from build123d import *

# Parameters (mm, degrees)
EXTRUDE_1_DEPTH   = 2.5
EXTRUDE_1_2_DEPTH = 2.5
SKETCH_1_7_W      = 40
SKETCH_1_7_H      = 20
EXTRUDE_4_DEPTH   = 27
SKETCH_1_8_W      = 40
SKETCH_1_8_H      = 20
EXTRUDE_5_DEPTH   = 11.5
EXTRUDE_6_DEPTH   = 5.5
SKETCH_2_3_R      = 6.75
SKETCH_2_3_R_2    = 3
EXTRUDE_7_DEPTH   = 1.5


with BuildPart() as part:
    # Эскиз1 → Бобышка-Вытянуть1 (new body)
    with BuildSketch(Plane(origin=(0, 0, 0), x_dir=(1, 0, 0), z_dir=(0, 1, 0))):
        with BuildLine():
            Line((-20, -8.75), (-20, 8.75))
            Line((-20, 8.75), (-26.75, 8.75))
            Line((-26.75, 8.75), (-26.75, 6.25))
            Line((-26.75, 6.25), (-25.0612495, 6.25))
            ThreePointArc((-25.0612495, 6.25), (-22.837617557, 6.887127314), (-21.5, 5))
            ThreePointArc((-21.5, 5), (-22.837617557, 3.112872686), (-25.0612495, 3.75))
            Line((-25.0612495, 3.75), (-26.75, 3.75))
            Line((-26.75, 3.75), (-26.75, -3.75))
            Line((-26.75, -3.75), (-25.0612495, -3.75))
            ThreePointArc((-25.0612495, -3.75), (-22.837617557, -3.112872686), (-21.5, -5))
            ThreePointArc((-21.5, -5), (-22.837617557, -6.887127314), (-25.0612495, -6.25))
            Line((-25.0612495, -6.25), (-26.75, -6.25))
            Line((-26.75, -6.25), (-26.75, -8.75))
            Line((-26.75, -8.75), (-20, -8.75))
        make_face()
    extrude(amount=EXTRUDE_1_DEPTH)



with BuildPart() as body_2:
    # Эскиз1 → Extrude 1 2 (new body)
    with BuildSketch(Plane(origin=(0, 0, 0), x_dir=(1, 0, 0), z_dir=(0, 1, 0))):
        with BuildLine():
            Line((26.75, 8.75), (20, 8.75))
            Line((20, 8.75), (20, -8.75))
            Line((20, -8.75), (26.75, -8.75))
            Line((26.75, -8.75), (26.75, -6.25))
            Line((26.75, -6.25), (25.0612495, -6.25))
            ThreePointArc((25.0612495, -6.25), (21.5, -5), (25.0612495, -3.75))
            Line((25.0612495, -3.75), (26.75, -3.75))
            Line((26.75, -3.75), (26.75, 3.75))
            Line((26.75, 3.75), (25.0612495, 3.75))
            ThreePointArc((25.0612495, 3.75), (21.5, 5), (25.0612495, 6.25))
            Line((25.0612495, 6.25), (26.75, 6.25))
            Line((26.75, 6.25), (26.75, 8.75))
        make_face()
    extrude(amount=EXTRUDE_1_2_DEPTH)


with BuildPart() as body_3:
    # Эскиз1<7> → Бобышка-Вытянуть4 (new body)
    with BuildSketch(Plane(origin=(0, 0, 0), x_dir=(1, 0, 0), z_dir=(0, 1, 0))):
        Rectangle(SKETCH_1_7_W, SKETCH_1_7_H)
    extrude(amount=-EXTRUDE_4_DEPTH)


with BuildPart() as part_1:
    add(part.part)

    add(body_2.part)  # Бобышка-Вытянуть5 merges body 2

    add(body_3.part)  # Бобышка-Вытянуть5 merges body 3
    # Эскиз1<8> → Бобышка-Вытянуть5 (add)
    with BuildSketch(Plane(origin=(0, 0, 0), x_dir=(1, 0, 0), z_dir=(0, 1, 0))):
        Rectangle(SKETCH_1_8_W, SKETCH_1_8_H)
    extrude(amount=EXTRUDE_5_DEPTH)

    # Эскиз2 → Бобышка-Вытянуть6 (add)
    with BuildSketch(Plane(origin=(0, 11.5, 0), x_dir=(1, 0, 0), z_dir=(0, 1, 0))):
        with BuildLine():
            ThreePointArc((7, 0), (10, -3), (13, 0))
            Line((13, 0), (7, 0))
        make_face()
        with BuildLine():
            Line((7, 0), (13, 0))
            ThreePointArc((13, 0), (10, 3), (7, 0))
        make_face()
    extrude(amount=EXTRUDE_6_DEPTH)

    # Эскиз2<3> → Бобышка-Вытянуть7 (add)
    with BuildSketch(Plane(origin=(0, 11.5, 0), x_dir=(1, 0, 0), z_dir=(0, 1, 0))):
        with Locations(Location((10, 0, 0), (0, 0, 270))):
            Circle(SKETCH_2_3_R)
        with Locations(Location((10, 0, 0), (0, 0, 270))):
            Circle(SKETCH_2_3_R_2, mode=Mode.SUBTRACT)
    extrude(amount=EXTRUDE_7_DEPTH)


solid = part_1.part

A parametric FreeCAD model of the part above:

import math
import FreeCAD as App
import Part
import Sketcher
from FreeCAD import Vector
Q = App.Units.Quantity


def add_polygon(sketch, points):
    """Adds a closed chain of lines whose ends are joined by coincident constraints."""
    first, n = sketch.GeometryCount, len(points)
    for a, b in zip(points, points[1:] + points[:1]):
        sketch.addGeometry(Part.LineSegment(App.Vector(*a, 0), App.Vector(*b, 0)), False)
    for i in range(n):
        sketch.addConstraint(Sketcher.Constraint("Coincident", first + i, 2, first + (i + 1) % n, 1))

doc = App.newDocument("Part")
params = doc.addObject("Spreadsheet::Sheet", "Params")
for row, (alias, value) in enumerate([
    ("sketch1_radius", "2 mm"),
    ("sketch1_height", "17.5 mm"),
    ("sketch1_height2", "2.5 mm"),
    ("sketch1_height3", "7.5 mm"),
    ("sketch1_width", "6.75 mm"),
    ("pad1_length", "2.5 mm"),
    ("sketch2_radius", "2 mm"),
    ("sketch2_height", "17.5 mm"),
    ("sketch2_height2", "2.5 mm"),
    ("sketch2_height3", "7.5 mm"),
    ("sketch2_width", "6.75 mm"),
    ("pad2_length", "2.5 mm"),
    ("sketch3_width", "40 mm"),
    ("sketch3_height", "20 mm"),
    ("pad3_length", "27 mm"),
    ("sketch4_width", "40 mm"),
    ("sketch4_height", "20 mm"),
    ("pad4_length", "11.5 mm"),
    ("sketch5_diameter", "6 mm"),
    ("pad5_length", "5.5 mm"),
    ("sketch6_diameter", "6 mm"),
    ("sketch6_diameter2", "13.5 mm"),
    ("pad6_length", "1.5 mm"),
], start=1):
    params.set(f"A{row}", alias)
    params.set(f"B{row}", "=" + value)
    params.setAlias(f"B{row}", alias)

body = doc.addObject("PartDesign::Body", "Body")

sketch1 = body.newObject("Sketcher::SketchObject", "Sketch")
sketch1.AttachmentSupport = (doc.getObject("XZ_Plane"), [""])
sketch1.MapMode = "FlatFace"
sketch1.addGeometry([
    Part.LineSegment(Vector(-20, 8.8, 0), Vector(-20, -8.8, 0)),
    Part.LineSegment(Vector(-20, -8.8, 0), Vector(-26.8, -8.8, 0)),
    Part.LineSegment(Vector(-26.8, -8.8, 0), Vector(-26.8, -6.2, 0)),
    Part.LineSegment(Vector(-26.8, -6.2, 0), Vector(-25.1, -6.2, 0)),
    Part.ArcOfCircle(Part.Circle(Vector(-23.5, -5, 0), Vector(0, 0, 1), 2), math.radians(-141), math.radians(0)),
    Part.ArcOfCircle(Part.Circle(Vector(-23.5, -5, 0), Vector(0, 0, 1), 2), math.radians(0), math.radians(141)),
    Part.LineSegment(Vector(-25.1, -3.8, 0), Vector(-26.8, -3.8, 0)),
    Part.LineSegment(Vector(-26.8, -3.8, 0), Vector(-26.8, 3.8, 0)),
    Part.LineSegment(Vector(-26.8, 3.8, 0), Vector(-25.1, 3.8, 0)),
    Part.ArcOfCircle(Part.Circle(Vector(-23.5, 5, 0), Vector(0, 0, 1), 2), math.radians(-141), math.radians(0)),
    Part.ArcOfCircle(Part.Circle(Vector(-23.5, 5, 0), Vector(0, 0, 1), 2), math.radians(0), math.radians(141)),
    Part.LineSegment(Vector(-25.1, 6.2, 0), Vector(-26.8, 6.2, 0)),
    Part.LineSegment(Vector(-26.8, 6.2, 0), Vector(-26.8, 8.8, 0)),
    Part.LineSegment(Vector(-26.8, 8.8, 0), Vector(-20, 8.8, 0)),
], False)
sketch1.addConstraint([
    Sketcher.Constraint("Coincident", 0, 2, 1, 1),
    Sketcher.Constraint("Coincident", 1, 2, 2, 1),
    Sketcher.Constraint("Coincident", 2, 2, 3, 1),
    Sketcher.Constraint("Coincident", 3, 2, 4, 1),
    Sketcher.Constraint("Tangent", 4, 2, 5, 1),
    Sketcher.Constraint("Coincident", 5, 2, 6, 1),
    Sketcher.Constraint("Coincident", 6, 2, 7, 1),
    Sketcher.Constraint("Coincident", 7, 2, 8, 1),
    Sketcher.Constraint("Coincident", 8, 2, 9, 1),
    Sketcher.Constraint("Tangent", 9, 2, 10, 1),
    Sketcher.Constraint("Coincident", 10, 2, 11, 1),
    Sketcher.Constraint("Coincident", 11, 2, 12, 1),
    Sketcher.Constraint("Coincident", 12, 2, 13, 1),
    Sketcher.Constraint("Coincident", 13, 2, 0, 1),
    Sketcher.Constraint("Vertical", 0),
    Sketcher.Constraint("Horizontal", 1),
    Sketcher.Constraint("Vertical", 2),
    Sketcher.Constraint("Horizontal", 3),
    Sketcher.Constraint("Horizontal", 6),
    Sketcher.Constraint("Vertical", 7),
    Sketcher.Constraint("Horizontal", 8),
    Sketcher.Constraint("Horizontal", 11),
    Sketcher.Constraint("Vertical", 12),
    Sketcher.Constraint("Horizontal", 13),
    Sketcher.Constraint("Equal", 4, 5),
    Sketcher.Constraint("Equal", 5, 9),
    Sketcher.Constraint("Equal", 9, 10),
    Sketcher.Constraint("Symmetric", 4, 3, 9, 3, -1),
    Sketcher.Constraint("Symmetric", 2, 2, 11, 2, -1),
    Sketcher.Constraint("Horizontal", 5, 3, 4, 2),
    Sketcher.Constraint("Horizontal", 10, 3, 9, 2),
    Sketcher.Constraint("Vertical", 3, 2, 5, 2),
    Sketcher.Constraint("Vertical", 2, 2, 6, 2),
    Sketcher.Constraint("Vertical", 5, 2, 8, 2),
    Sketcher.Constraint("Equal", 2, 12),
    Sketcher.Constraint("Radius", 4, Q("2 mm")),
    Sketcher.Constraint("DistanceY", 0, 2, 0, 1, Q("17.5 mm")),
    Sketcher.Constraint("DistanceY", 2, 1, 2, 2, Q("2.5 mm")),
    Sketcher.Constraint("DistanceY", 7, 1, 7, 2, Q("7.5 mm")),
    Sketcher.Constraint("DistanceX", 0, 2, -1, 1, Q("20 mm")),
    Sketcher.Constraint("DistanceX", 1, 2, 1, 1, Q("6.75 mm")),
    Sketcher.Constraint("DistanceX", 4, 3, -1, 1, Q("23.5 mm")),
])
sketch1.setExpression("Constraints[35]", "Params.sketch1_radius")
sketch1.setExpression("Constraints[36]", "Params.sketch1_height")
sketch1.setExpression("Constraints[37]", "Params.sketch1_height2")
sketch1.setExpression("Constraints[38]", "Params.sketch1_height3")
sketch1.setExpression("Constraints[40]", "Params.sketch1_width")
pad1 = body.newObject("PartDesign::Pad", "Pad")
pad1.Profile = sketch1
pad1.setExpression("Length", "Params.pad1_length")
pad1.Reversed = True
body2 = doc.addObject("PartDesign::Body", "Body001")

sketch2 = body2.newObject("Sketcher::SketchObject", "Sketch001")
sketch2.AttachmentSupport = (doc.getObject("XZ_Plane001"), [""])
sketch2.MapMode = "FlatFace"
sketch2.addGeometry([
    Part.LineSegment(Vector(26.8, -8.8, 0), Vector(20, -8.8, 0)),
    Part.LineSegment(Vector(20, -8.8, 0), Vector(20, 8.8, 0)),
    Part.LineSegment(Vector(20, 8.8, 0), Vector(26.8, 8.8, 0)),
    Part.LineSegment(Vector(26.8, 8.8, 0), Vector(26.8, 6.2, 0)),
    Part.LineSegment(Vector(26.8, 6.2, 0), Vector(25.1, 6.2, 0)),
    Part.ArcOfCircle(Part.Circle(Vector(23.5, 5, 0), Vector(0, 0, 1), 2), math.radians(39), math.radians(321)),
    Part.LineSegment(Vector(25.1, 3.8, 0), Vector(26.8, 3.8, 0)),
    Part.LineSegment(Vector(26.8, 3.8, 0), Vector(26.8, -3.8, 0)),
    Part.LineSegment(Vector(26.8, -3.8, 0), Vector(25.1, -3.8, 0)),
    Part.ArcOfCircle(Part.Circle(Vector(23.5, -5, 0), Vector(0, 0, 1), 2), math.radians(39), math.radians(321)),
    Part.LineSegment(Vector(25.1, -6.2, 0), Vector(26.8, -6.2, 0)),
    Part.LineSegment(Vector(26.8, -6.2, 0), Vector(26.8, -8.8, 0)),
], False)
sketch2.addConstraint([
    Sketcher.Constraint("Coincident", 0, 2, 1, 1),
    Sketcher.Constraint("Coincident", 1, 2, 2, 1),
    Sketcher.Constraint("Coincident", 2, 2, 3, 1),
    Sketcher.Constraint("Coincident", 3, 2, 4, 1),
    Sketcher.Constraint("Coincident", 4, 2, 5, 1),
    Sketcher.Constraint("Coincident", 5, 2, 6, 1),
    Sketcher.Constraint("Coincident", 6, 2, 7, 1),
    Sketcher.Constraint("Coincident", 7, 2, 8, 1),
    Sketcher.Constraint("Coincident", 8, 2, 9, 1),
    Sketcher.Constraint("Coincident", 9, 2, 10, 1),
    Sketcher.Constraint("Coincident", 10, 2, 11, 1),
    Sketcher.Constraint("Coincident", 11, 2, 0, 1),
    Sketcher.Constraint("Horizontal", 0),
    Sketcher.Constraint("Vertical", 1),
    Sketcher.Constraint("Horizontal", 2),
    Sketcher.Constraint("Vertical", 3),
    Sketcher.Constraint("Horizontal", 4),
    Sketcher.Constraint("Horizontal", 6),
    Sketcher.Constraint("Vertical", 7),
    Sketcher.Constraint("Horizontal", 8),
    Sketcher.Constraint("Horizontal", 10),
    Sketcher.Constraint("Vertical", 11),
    Sketcher.Constraint("Equal", 5, 9),
    Sketcher.Constraint("Symmetric", 5, 3, 9, 3, -1),
    Sketcher.Constraint("Symmetric", 3, 2, 10, 2, -1),
    Sketcher.Constraint("Vertical", 4, 2, 5, 2),
    Sketcher.Constraint("Vertical", 3, 2, 6, 2),
    Sketcher.Constraint("Vertical", 5, 2, 8, 2),
    Sketcher.Constraint("Equal", 3, 11),
    Sketcher.Constraint("Radius", 5, Q("2 mm")),
    Sketcher.Constraint("DistanceY", 1, 1, 1, 2, Q("17.5 mm")),
    Sketcher.Constraint("DistanceY", 3, 2, 3, 1, Q("2.5 mm")),
    Sketcher.Constraint("DistanceY", 7, 2, 7, 1, Q("7.5 mm")),
    Sketcher.Constraint("DistanceX", -1, 1, 0, 2, Q("20 mm")),
    Sketcher.Constraint("DistanceX", 0, 2, 0, 1, Q("6.75 mm")),
    Sketcher.Constraint("DistanceX", -1, 1, 5, 3, Q("23.5 mm")),
])
sketch2.setExpression("Constraints[29]", "Params.sketch2_radius")
sketch2.setExpression("Constraints[30]", "Params.sketch2_height")
sketch2.setExpression("Constraints[31]", "Params.sketch2_height2")
sketch2.setExpression("Constraints[32]", "Params.sketch2_height3")
sketch2.setExpression("Constraints[34]", "Params.sketch2_width")
pad2 = body2.newObject("PartDesign::Pad", "Pad001")
pad2.Profile = sketch2
pad2.setExpression("Length", "Params.pad2_length")
pad2.Reversed = True
body3 = doc.addObject("PartDesign::Body", "Body002")

sketch3 = body3.newObject("Sketcher::SketchObject", "Sketch002")
sketch3.AttachmentSupport = (doc.getObject("XZ_Plane002"), [""])
sketch3.MapMode = "FlatFace"
add_polygon(sketch3, [(-20, -10), (-20, 10), (20, 10), (20, -10)])
sketch3.addConstraint([
    Sketcher.Constraint("Vertical", 0),
    Sketcher.Constraint("Horizontal", 1),
    Sketcher.Constraint("Vertical", 2),
    Sketcher.Constraint("Horizontal", 3),
    Sketcher.Constraint("Symmetric", 0, 2, 2, 2, -1, 1),
    Sketcher.Constraint("DistanceX", 1, 1, 1, 2, Q("40 mm")),
    Sketcher.Constraint("DistanceY", 0, 1, 0, 2, Q("20 mm")),
])
sketch3.setExpression("Constraints[9]", "Params.sketch3_width")
sketch3.setExpression("Constraints[10]", "Params.sketch3_height")
pad3 = body3.newObject("PartDesign::Pad", "Pad002")
pad3.Profile = sketch3
pad3.setExpression("Length", "Params.pad3_length")
body.AllowCompound = True
doc.recompute()

boolean = body.newObject("PartDesign::Boolean", "Boolean")
boolean.Type = "Fuse"
boolean.addObjects([body2])
doc.recompute()

boolean2 = body.newObject("PartDesign::Boolean", "Boolean001")
boolean2.Type = "Fuse"
boolean2.addObjects([body3])

sketch4 = body.newObject("Sketcher::SketchObject", "Sketch003")
sketch4.AttachmentSupport = (doc.getObject("XZ_Plane"), [""])
sketch4.MapMode = "FlatFace"
add_polygon(sketch4, [(-20, -10), (-20, 10), (20, 10), (20, -10)])
sketch4.addConstraint([
    Sketcher.Constraint("Vertical", 0),
    Sketcher.Constraint("Horizontal", 1),
    Sketcher.Constraint("Vertical", 2),
    Sketcher.Constraint("Horizontal", 3),
    Sketcher.Constraint("Symmetric", 0, 2, 2, 2, -1, 1),
    Sketcher.Constraint("DistanceX", 1, 1, 1, 2, Q("40 mm")),
    Sketcher.Constraint("DistanceY", 0, 1, 0, 2, Q("20 mm")),
])
sketch4.setExpression("Constraints[9]", "Params.sketch4_width")
sketch4.setExpression("Constraints[10]", "Params.sketch4_height")
pad4 = body.newObject("PartDesign::Pad", "Pad003")
pad4.Profile = sketch4
pad4.setExpression("Length", "Params.pad4_length")
pad4.Reversed = True

sketch5 = body.newObject("Sketcher::SketchObject", "Sketch004")
sketch5.AttachmentSupport = (doc.getObject("XZ_Plane"), [""])
sketch5.MapMode = "FlatFace"
sketch5.AttachmentOffset = App.Placement(Vector(0, 0, -11.5), App.Rotation())
sketch5.addGeometry(Part.Circle(Vector(10, 0, 0), Vector(0, 0, 1), 3), False)
sketch5.addConstraint([
    Sketcher.Constraint("PointOnObject", 0, 3, -1),
    Sketcher.Constraint("Diameter", 0, Q("6 mm")),
    Sketcher.Constraint("DistanceX", -1, 1, 0, 3, Q("10 mm")),
])
sketch5.setExpression("Constraints[1]", "Params.sketch5_diameter")
pad5 = body.newObject("PartDesign::Pad", "Pad004")
pad5.Profile = sketch5
pad5.setExpression("Length", "Params.pad5_length")
pad5.Reversed = True

sketch6 = body.newObject("Sketcher::SketchObject", "Sketch005")
sketch6.AttachmentSupport = (doc.getObject("XZ_Plane"), [""])
sketch6.MapMode = "FlatFace"
sketch6.AttachmentOffset = App.Placement(Vector(0, 0, -11.5), App.Rotation())
sketch6.addGeometry([
    Part.Circle(Vector(10, 0, 0), Vector(0, 0, 1), 6.8),
    Part.Circle(Vector(10, 0, 0), Vector(0, 0, 1), 3),
], False)
sketch6.addConstraint([
    Sketcher.Constraint("Coincident", 1, 3, 0, 3),
    Sketcher.Constraint("PointOnObject", 0, 3, -1),
    Sketcher.Constraint("Diameter", 1, Q("6 mm")),
    Sketcher.Constraint("Diameter", 0, Q("13.5 mm")),
    Sketcher.Constraint("DistanceX", -1, 1, 0, 3, Q("10 mm")),
])
sketch6.setExpression("Constraints[2]", "Params.sketch6_diameter")
sketch6.setExpression("Constraints[3]", "Params.sketch6_diameter2")
pad6 = body.newObject("PartDesign::Pad", "Pad005")
pad6.Profile = sketch6
pad6.setExpression("Length", "Params.pad6_length")
pad6.Reversed = True

doc.recompute()
